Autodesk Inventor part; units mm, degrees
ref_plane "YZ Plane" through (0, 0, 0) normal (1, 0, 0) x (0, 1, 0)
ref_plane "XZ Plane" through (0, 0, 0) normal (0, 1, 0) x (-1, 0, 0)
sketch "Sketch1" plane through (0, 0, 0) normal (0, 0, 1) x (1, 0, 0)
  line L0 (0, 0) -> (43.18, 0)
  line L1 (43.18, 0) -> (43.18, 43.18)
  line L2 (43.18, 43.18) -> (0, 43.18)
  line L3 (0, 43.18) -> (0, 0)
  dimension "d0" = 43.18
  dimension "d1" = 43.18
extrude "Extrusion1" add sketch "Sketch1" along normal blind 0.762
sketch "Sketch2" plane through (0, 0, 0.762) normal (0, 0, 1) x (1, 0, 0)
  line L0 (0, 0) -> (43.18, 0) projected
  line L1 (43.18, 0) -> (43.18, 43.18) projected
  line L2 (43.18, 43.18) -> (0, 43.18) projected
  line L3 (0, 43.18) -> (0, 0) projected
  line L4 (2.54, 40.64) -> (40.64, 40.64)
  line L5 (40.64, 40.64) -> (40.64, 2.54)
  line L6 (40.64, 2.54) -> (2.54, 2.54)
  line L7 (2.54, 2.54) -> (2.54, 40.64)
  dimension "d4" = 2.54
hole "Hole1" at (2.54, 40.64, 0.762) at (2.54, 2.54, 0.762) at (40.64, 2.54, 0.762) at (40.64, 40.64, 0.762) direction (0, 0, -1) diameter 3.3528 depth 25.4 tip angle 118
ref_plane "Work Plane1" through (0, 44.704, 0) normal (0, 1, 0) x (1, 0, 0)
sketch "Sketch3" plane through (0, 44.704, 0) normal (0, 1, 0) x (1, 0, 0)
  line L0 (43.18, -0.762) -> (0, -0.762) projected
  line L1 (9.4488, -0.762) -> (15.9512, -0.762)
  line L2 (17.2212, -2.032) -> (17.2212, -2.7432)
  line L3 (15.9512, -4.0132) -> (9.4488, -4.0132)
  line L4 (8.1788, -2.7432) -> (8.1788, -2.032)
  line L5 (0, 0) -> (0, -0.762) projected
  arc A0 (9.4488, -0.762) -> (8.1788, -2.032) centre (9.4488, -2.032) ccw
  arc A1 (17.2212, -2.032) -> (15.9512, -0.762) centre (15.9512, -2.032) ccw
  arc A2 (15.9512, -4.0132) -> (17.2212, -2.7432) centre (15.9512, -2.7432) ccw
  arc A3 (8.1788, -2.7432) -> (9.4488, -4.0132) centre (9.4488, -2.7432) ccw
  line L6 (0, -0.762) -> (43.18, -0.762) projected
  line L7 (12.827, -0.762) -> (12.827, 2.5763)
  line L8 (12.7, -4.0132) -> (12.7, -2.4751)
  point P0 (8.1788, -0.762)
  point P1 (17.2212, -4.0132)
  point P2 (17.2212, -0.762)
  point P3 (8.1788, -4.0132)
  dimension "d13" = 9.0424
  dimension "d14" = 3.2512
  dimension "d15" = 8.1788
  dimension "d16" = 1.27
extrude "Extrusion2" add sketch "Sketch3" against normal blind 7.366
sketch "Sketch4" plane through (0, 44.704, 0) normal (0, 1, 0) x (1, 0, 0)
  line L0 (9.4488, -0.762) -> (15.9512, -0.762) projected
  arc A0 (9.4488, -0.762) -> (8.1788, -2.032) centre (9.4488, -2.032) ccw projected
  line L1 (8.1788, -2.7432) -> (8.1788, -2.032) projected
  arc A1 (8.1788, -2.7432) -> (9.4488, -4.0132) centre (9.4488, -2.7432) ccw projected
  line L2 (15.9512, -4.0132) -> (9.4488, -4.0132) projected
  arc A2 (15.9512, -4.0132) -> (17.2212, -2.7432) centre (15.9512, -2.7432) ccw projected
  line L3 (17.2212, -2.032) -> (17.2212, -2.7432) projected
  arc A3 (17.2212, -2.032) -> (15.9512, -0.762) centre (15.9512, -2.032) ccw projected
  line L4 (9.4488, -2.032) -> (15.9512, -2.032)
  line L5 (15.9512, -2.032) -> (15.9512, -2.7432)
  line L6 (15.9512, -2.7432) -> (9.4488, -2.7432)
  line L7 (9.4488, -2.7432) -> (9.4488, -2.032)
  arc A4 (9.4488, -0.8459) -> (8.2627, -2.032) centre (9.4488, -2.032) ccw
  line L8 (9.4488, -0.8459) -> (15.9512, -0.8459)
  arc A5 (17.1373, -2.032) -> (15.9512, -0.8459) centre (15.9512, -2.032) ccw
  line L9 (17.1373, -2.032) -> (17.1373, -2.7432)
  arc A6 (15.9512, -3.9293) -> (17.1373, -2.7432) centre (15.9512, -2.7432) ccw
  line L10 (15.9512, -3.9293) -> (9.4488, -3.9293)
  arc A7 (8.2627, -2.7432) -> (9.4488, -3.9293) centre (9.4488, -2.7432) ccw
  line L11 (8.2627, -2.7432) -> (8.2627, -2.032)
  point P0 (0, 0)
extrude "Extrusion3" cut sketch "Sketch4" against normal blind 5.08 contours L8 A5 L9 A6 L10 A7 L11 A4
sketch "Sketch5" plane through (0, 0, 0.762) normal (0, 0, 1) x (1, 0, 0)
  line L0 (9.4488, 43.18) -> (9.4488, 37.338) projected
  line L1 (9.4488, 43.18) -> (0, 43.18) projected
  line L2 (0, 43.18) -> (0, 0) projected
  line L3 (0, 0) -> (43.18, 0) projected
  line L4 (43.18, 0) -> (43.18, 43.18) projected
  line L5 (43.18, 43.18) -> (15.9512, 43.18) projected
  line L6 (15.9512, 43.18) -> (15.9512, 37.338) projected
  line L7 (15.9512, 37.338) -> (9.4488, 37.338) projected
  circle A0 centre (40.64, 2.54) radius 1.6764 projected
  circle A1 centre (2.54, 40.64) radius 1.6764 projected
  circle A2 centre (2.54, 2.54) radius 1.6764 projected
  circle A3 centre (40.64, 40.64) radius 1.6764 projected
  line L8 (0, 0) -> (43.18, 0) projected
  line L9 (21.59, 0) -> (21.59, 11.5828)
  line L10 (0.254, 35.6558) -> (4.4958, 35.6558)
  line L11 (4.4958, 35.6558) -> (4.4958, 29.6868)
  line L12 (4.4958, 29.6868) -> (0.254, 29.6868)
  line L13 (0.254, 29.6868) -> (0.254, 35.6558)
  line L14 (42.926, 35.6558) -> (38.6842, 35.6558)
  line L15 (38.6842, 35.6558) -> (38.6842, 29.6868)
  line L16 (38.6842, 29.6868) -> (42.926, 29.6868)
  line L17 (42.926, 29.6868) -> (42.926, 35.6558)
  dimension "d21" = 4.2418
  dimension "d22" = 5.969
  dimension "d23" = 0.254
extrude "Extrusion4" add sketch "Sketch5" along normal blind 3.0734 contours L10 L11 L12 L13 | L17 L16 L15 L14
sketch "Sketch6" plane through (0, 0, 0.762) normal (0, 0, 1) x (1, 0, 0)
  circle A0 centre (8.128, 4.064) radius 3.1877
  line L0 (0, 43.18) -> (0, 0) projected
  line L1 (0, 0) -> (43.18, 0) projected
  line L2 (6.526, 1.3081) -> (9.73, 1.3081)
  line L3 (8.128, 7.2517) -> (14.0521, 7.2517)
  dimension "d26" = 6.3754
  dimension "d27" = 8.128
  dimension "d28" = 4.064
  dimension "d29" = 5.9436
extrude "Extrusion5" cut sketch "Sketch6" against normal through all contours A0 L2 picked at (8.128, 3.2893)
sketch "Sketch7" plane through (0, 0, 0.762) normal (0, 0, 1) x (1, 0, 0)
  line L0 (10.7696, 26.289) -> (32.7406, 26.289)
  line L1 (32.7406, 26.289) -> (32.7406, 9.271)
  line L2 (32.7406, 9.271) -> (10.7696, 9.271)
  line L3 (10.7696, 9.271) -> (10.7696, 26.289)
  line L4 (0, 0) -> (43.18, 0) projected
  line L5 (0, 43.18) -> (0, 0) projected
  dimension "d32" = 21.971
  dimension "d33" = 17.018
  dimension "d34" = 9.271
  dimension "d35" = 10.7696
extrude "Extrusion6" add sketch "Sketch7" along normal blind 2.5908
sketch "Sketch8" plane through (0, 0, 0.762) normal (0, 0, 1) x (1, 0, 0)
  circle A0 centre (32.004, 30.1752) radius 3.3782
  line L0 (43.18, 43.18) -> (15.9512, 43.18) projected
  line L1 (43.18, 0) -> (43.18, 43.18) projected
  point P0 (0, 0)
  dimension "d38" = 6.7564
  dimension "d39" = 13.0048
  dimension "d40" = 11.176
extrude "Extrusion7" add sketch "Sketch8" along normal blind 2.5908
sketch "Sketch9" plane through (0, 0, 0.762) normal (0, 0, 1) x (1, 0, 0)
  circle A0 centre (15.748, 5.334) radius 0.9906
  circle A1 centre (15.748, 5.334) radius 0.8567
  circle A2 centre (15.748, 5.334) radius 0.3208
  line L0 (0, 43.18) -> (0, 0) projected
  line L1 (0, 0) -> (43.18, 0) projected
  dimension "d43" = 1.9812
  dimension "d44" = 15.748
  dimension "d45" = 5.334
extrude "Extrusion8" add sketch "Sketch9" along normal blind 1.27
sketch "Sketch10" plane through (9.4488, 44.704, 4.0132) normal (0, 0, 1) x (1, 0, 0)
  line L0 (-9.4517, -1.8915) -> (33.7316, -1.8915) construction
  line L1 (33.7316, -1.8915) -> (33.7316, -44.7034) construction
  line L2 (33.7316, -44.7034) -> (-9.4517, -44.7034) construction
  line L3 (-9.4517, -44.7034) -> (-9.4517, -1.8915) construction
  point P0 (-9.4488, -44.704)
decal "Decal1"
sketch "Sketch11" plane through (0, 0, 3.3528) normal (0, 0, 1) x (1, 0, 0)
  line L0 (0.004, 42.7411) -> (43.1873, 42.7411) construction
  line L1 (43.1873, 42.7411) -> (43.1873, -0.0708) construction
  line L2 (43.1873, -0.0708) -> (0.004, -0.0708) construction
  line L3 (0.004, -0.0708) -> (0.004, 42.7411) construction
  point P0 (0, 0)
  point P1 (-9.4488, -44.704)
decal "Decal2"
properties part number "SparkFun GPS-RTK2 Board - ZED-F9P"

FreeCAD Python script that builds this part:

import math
import FreeCAD as App
import Part
import Sketcher
Q = App.Units.Quantity

doc = App.newDocument("Part")
body = doc.addObject("PartDesign::Body", "Body")

# Sketch on XY plane
sketch1 = body.newObject("Sketcher::SketchObject", "Sketch")
sketch1.AttachmentSupport = (doc.getObject("XY_Plane"), [""])
sketch1.MapMode = "FlatFace"
sketch1.addGeometry(Part.LineSegment(App.Vector(0, 43, 0), App.Vector(0, 0, 0)), False)
sketch1.addGeometry(Part.LineSegment(App.Vector(0, 0, 0), App.Vector(43, 0, 0)), False)
sketch1.addGeometry(Part.LineSegment(App.Vector(43, 0, 0), App.Vector(43, 43, 0)), False)
sketch1.addGeometry(Part.LineSegment(App.Vector(43, 43, 0), App.Vector(0, 43, 0)), False)
sketch1.addConstraint(Sketcher.Constraint("Coincident", 0, 2, 1, 1))
sketch1.addConstraint(Sketcher.Constraint("Coincident", 1, 2, 2, 1))
sketch1.addConstraint(Sketcher.Constraint("Coincident", 2, 2, 3, 1))
sketch1.addConstraint(Sketcher.Constraint("Coincident", 3, 2, 0, 1))
sketch1.addConstraint(Sketcher.Constraint("Vertical", 0))
sketch1.addConstraint(Sketcher.Constraint("Horizontal", 1))
sketch1.addConstraint(Sketcher.Constraint("Vertical", 2))
sketch1.addConstraint(Sketcher.Constraint("Horizontal", 3))
sketch1.addConstraint(Sketcher.Constraint("Coincident", 0, 2, -1, 1))
sketch1.addConstraint(Sketcher.Constraint("Equal", 3, 0))
sketch1.addConstraint(Sketcher.Constraint("DistanceX", 1, 1, 1, 2, Q("1.7 in")))
pad1 = body.newObject("PartDesign::Pad", "Pad")
pad1.Profile = sketch1
pad1.Length = Q("0.03 in")

# Sketch on XY plane
sketch2 = body.newObject("Sketcher::SketchObject", "Sketch001")
sketch2.AttachmentSupport = (doc.getObject("XY_Plane"), [""])
sketch2.MapMode = "FlatFace"
sketch2.AttachmentOffset = App.Placement(App.Vector(0, 0, 0.03 * 25.4), App.Rotation())
sketch2.addGeometry(Part.Circle(App.Vector(2.5, 40.6, 0), App.Vector(0, 0, 1), 1.7), False)
sketch2.addGeometry(Part.Circle(App.Vector(2.5, 2.5, 0), App.Vector(0, 0, 1), 1.7), False)
sketch2.addGeometry(Part.Circle(App.Vector(40.6, 2.5, 0), App.Vector(0, 0, 1), 1.7), False)
sketch2.addGeometry(Part.Circle(App.Vector(40.6, 40.6, 0), App.Vector(0, 0, 1), 1.7), False)
sketch2.addConstraint(Sketcher.Constraint("Equal", 0, 1))
sketch2.addConstraint(Sketcher.Constraint("Equal", 1, 2))
sketch2.addConstraint(Sketcher.Constraint("Equal", 2, 3))
sketch2.addConstraint(Sketcher.Constraint("Horizontal", 1, 3, 2, 3))
sketch2.addConstraint(Sketcher.Constraint("Horizontal", 0, 3, 3, 3))
sketch2.addConstraint(Sketcher.Constraint("Vertical", 0, 3, 1, 3))
sketch2.addConstraint(Sketcher.Constraint("Vertical", 2, 3, 3, 3))
sketch2.addConstraint(Sketcher.Constraint("Diameter", 0, Q("0.132 in")))
sketch2.addConstraint(Sketcher.Constraint("DistanceX", -1, 1, 0, 3, Q("0.1 in")))
sketch2.addConstraint(Sketcher.Constraint("DistanceY", -1, 1, 0, 3, Q("1.6 in")))
sketch2.addConstraint(Sketcher.Constraint("DistanceY", -1, 1, 1, 3, Q("0.1 in")))
sketch2.addConstraint(Sketcher.Constraint("DistanceX", -1, 1, 2, 3, Q("1.6 in")))
doc.recompute()
hole = body.newObject("PartDesign::Hole", "Hole")
hole.Profile = sketch2
hole.ThreadType = "None"
hole.Diameter = Q("0.132 in")
hole.DepthType = "Dimension"
hole.Depth = Q("1 in")
hole.DrillPoint = "Angled"
hole.DrillPointAngle = 118

# Sketch on XZ plane
sketch3 = body.newObject("Sketcher::SketchObject", "Sketch002")
sketch3.AttachmentSupport = (doc.getObject("XZ_Plane"), [""])
sketch3.MapMode = "FlatFace"
sketch3.AttachmentOffset = App.Placement(App.Vector(0, 0, -1.76 * 25.4), App.Rotation())
sketch3.addGeometry(Part.ArcOfCircle(Part.Circle(App.Vector(16, 2, 0), App.Vector(0, 0, 1), 1.3), math.radians(-90), math.radians(0)), False)
sketch3.addGeometry(Part.LineSegment(App.Vector(16, 0.8, 0), App.Vector(9.4, 0.8, 0)), False)
sketch3.addGeometry(Part.ArcOfCircle(Part.Circle(App.Vector(9.4, 2, 0), App.Vector(0, 0, 1), 1.3), math.radians(180), math.radians(270)), False)
sketch3.addGeometry(Part.LineSegment(App.Vector(8.2, 2, 0), App.Vector(8.2, 2.7, 0)), False)
sketch3.addGeometry(Part.ArcOfCircle(Part.Circle(App.Vector(9.4, 2.7, 0), App.Vector(0, 0, 1), 1.3), math.radians(90), math.radians(180)), False)
sketch3.addGeometry(Part.LineSegment(App.Vector(9.4, 4, 0), App.Vector(16, 4, 0)), False)
sketch3.addGeometry(Part.ArcOfCircle(Part.Circle(App.Vector(16, 2.7, 0), App.Vector(0, 0, 1), 1.3), math.radians(0), math.radians(90)), False)
sketch3.addGeometry(Part.LineSegment(App.Vector(17.2, 2.7, 0), App.Vector(17.2, 2, 0)), False)
sketch3.addConstraint(Sketcher.Constraint("Tangent", 0, 1, 1, 1))
sketch3.addConstraint(Sketcher.Constraint("Tangent", 1, 2, 2, 2))
sketch3.addConstraint(Sketcher.Constraint("Tangent", 2, 1, 3, 1))
sketch3.addConstraint(Sketcher.Constraint("Tangent", 3, 2, 4, 2))
sketch3.addConstraint(Sketcher.Constraint("Tangent", 4, 1, 5, 1))
sketch3.addConstraint(Sketcher.Constraint("Tangent", 5, 2, 6, 2))
sketch3.addConstraint(Sketcher.Constraint("Tangent", 6, 1, 7, 1))
sketch3.addConstraint(Sketcher.Constraint("Tangent", 7, 2, 0, 2))
sketch3.addConstraint(Sketcher.Constraint("Horizontal", 1))
sketch3.addConstraint(Sketcher.Constraint("Vertical", 3))
sketch3.addConstraint(Sketcher.Constraint("Horizontal", 5))
sketch3.addConstraint(Sketcher.Constraint("Vertical", 7))
sketch3.addConstraint(Sketcher.Constraint("Equal", 0, 2))
sketch3.addConstraint(Sketcher.Constraint("Equal", 2, 4))
sketch3.addConstraint(Sketcher.Constraint("Equal", 4, 6))
sketch3.addConstraint(Sketcher.Constraint("Radius", 0, Q("0.05 in")))
sketch3.addConstraint(Sketcher.Constraint("DistanceX", -1, 1, 2, 1, Q("0.322 in")))
sketch3.addConstraint(Sketcher.Constraint("DistanceY", 1, 2, 4, 1, Q("0.128 in")))
sketch3.addConstraint(Sketcher.Constraint("DistanceX", 1, 2, 1, 1, Q("0.256 in")))
sketch3.addConstraint(Sketcher.Constraint("DistanceY", -1, 1, 0, 3, Q("0.08 in")))
pad2 = body.newObject("PartDesign::Pad", "Pad001")
pad2.Profile = sketch3
pad2.Length = Q("0.29 in")

# Sketch on XZ plane
sketch4 = body.newObject("Sketcher::SketchObject", "Sketch003")
sketch4.AttachmentSupport = (doc.getObject("XZ_Plane"), [""])
sketch4.MapMode = "FlatFace"
sketch4.AttachmentOffset = App.Placement(App.Vector(0, 0, -1.76 * 25.4), App.Rotation())
sketch4.addGeometry(Part.LineSegment(App.Vector(16, 0.8, 0), App.Vector(9.4, 0.8, 0)), False)
sketch4.addGeometry(Part.ArcOfCircle(Part.Circle(App.Vector(9.4, 2, 0), App.Vector(0, 0, 1), 1.2), math.radians(180), math.radians(270)), False)
sketch4.addGeometry(Part.LineSegment(App.Vector(8.3, 2, 0), App.Vector(8.3, 2.7, 0)), False)
sketch4.addGeometry(Part.ArcOfCircle(Part.Circle(App.Vector(9.4, 2.7, 0), App.Vector(0, 0, 1), 1.2), math.radians(90), math.radians(180)), False)
sketch4.addGeometry(Part.LineSegment(App.Vector(9.4, 3.9, 0), App.Vector(16, 3.9, 0)), False)
sketch4.addGeometry(Part.ArcOfCircle(Part.Circle(App.Vector(16, 2.7, 0), App.Vector(0, 0, 1), 1.2), math.radians(0), math.radians(90)), False)
sketch4.addGeometry(Part.LineSegment(App.Vector(17.1, 2.7, 0), App.Vector(17.1, 2, 0)), False)
sketch4.addGeometry(Part.ArcOfCircle(Part.Circle(App.Vector(16, 2, 0), App.Vector(0, 0, 1), 1.2), math.radians(-90), math.radians(0)), False)
sketch4.addGeometry(Part.LineSegment(App.Vector(9.4, 2.7, 0), App.Vector(9.4, 2, 0)), False)
sketch4.addGeometry(Part.LineSegment(App.Vector(9.4, 2, 0), App.Vector(16, 2, 0)), False)
sketch4.addGeometry(Part.LineSegment(App.Vector(16, 2, 0), App.Vector(16, 2.7, 0)), False)
sketch4.addGeometry(Part.LineSegment(App.Vector(16, 2.7, 0), App.Vector(9.4, 2.7, 0)), False)
sketch4.addConstraint(Sketcher.Constraint("Tangent", 0, 2, 1, 2))
sketch4.addConstraint(Sketcher.Constraint("Tangent", 1, 1, 2, 1))
sketch4.addConstraint(Sketcher.Constraint("Tangent", 2, 2, 3, 2))
sketch4.addConstraint(Sketcher.Constraint("Tangent", 3, 1, 4, 1))
sketch4.addConstraint(Sketcher.Constraint("Tangent", 4, 2, 5, 2))
sketch4.addConstraint(Sketcher.Constraint("Tangent", 5, 1, 6, 1))
sketch4.addConstraint(Sketcher.Constraint("Tangent", 6, 2, 7, 2))
sketch4.addConstraint(Sketcher.Constraint("Tangent", 7, 1, 0, 1))
sketch4.addConstraint(Sketcher.Constraint("Coincident", 8, 2, 9, 1))
sketch4.addConstraint(Sketcher.Constraint("Coincident", 9, 2, 10, 1))
sketch4.addConstraint(Sketcher.Constraint("Coincident", 10, 2, 11, 1))
sketch4.addConstraint(Sketcher.Constraint("Coincident", 11, 2, 8, 1))
sketch4.addConstraint(Sketcher.Constraint("Horizontal", 0))
sketch4.addConstraint(Sketcher.Constraint("Vertical", 2))
sketch4.addConstraint(Sketcher.Constraint("Horizontal", 4))
sketch4.addConstraint(Sketcher.Constraint("Vertical", 6))
sketch4.addConstraint(Sketcher.Constraint("Vertical", 8))
sketch4.addConstraint(Sketcher.Constraint("Horizontal", 9))
sketch4.addConstraint(Sketcher.Constraint("Vertical", 10))
sketch4.addConstraint(Sketcher.Constraint("Horizontal", 11))
sketch4.addConstraint(Sketcher.Constraint("Coincident", 8, 2, 1, 3))
sketch4.addConstraint(Sketcher.Constraint("Coincident", 9, 2, 7, 3))
sketch4.addConstraint(Sketcher.Constraint("Coincident", 10, 2, 5, 3))
sketch4.addConstraint(Sketcher.Constraint("Equal", 1, 3))
sketch4.addConstraint(Sketcher.Constraint("Radius", 1, Q("0.0467 in")))
sketch4.addConstraint(Sketcher.Constraint("DistanceX", 0, 2, 0, 1, Q("0.256 in")))
sketch4.addConstraint(Sketcher.Constraint("DistanceY", 2, 1, 2, 2, Q("0.028 in")))
sketch4.addConstraint(Sketcher.Constraint("DistanceY", -1, 1, 1, 3, Q("0.08 in")))
sketch4.addConstraint(Sketcher.Constraint("DistanceX", -1, 1, 1, 3, Q("0.372 in")))
pocket1 = body.newObject("PartDesign::Pocket", "Pocket")
pocket1.Profile = sketch4
pocket1.Length = Q("0.2 in")
pocket1.Reversed = True

# Sketch on XY plane
sketch5 = body.newObject("Sketcher::SketchObject", "Sketch004")
sketch5.AttachmentSupport = (doc.getObject("XY_Plane"), [""])
sketch5.MapMode = "FlatFace"
sketch5.AttachmentOffset = App.Placement(App.Vector(0, 0, 0.03 * 25.4), App.Rotation())
sketch5.addGeometry(Part.LineSegment(App.Vector(4.5, 35.7, 0), App.Vector(0.3, 35.7, 0)), False)
sketch5.addGeometry(Part.LineSegment(App.Vector(0.3, 35.7, 0), App.Vector(0.3, 29.7, 0)), False)
sketch5.addGeometry(Part.LineSegment(App.Vector(0.3, 29.7, 0), App.Vector(4.5, 29.7, 0)), False)
sketch5.addGeometry(Part.LineSegment(App.Vector(4.5, 29.7, 0), App.Vector(4.5, 35.7, 0)), False)
sketch5.addGeometry(Part.LineSegment(App.Vector(42.9, 29.7, 0), App.Vector(42.9, 35.7, 0)), False)
sketch5.addGeometry(Part.LineSegment(App.Vector(42.9, 35.7, 0), App.Vector(38.7, 35.7, 0)), False)
sketch5.addGeometry(Part.LineSegment(App.Vector(38.7, 35.7, 0), App.Vector(38.7, 29.7, 0)), False)
sketch5.addGeometry(Part.LineSegment(App.Vector(38.7, 29.7, 0), App.Vector(42.9, 29.7, 0)), False)
sketch5.addConstraint(Sketcher.Constraint("Coincident", 0, 2, 1, 1))
sketch5.addConstraint(Sketcher.Constraint("Coincident", 1, 2, 2, 1))
sketch5.addConstraint(Sketcher.Constraint("Coincident", 2, 2, 3, 1))
sketch5.addConstraint(Sketcher.Constraint("Coincident", 3, 2, 0, 1))
sketch5.addConstraint(Sketcher.Constraint("Coincident", 4, 2, 5, 1))
sketch5.addConstraint(Sketcher.Constraint("Coincident", 5, 2, 6, 1))
sketch5.addConstraint(Sketcher.Constraint("Coincident", 6, 2, 7, 1))
sketch5.addConstraint(Sketcher.Constraint("Coincident", 7, 2, 4, 1))
sketch5.addConstraint(Sketcher.Constraint("Horizontal", 0))
sketch5.addConstraint(Sketcher.Constraint("Vertical", 1))
sketch5.addConstraint(Sketcher.Constraint("Horizontal", 2))
sketch5.addConstraint(Sketcher.Constraint("Vertical", 3))
sketch5.addConstraint(Sketcher.Constraint("Vertical", 4))
sketch5.addConstraint(Sketcher.Constraint("Horizontal", 5))
sketch5.addConstraint(Sketcher.Constraint("Vertical", 6))
sketch5.addConstraint(Sketcher.Constraint("Horizontal", 7))
sketch5.addConstraint(Sketcher.Constraint("Horizontal", 3, 2, 4, 2))
sketch5.addConstraint(Sketcher.Constraint("Horizontal", 2, 2, 6, 2))
sketch5.addConstraint(Sketcher.Constraint("Equal", 2, 5))
sketch5.addConstraint(Sketcher.Constraint("DistanceX", 0, 2, 0, 1, Q("0.167 in")))
sketch5.addConstraint(Sketcher.Constraint("DistanceY", 1, 2, 1, 1, Q("0.235 in")))
sketch5.addConstraint(Sketcher.Constraint("DistanceX", -1, 1, 0, 2, Q("0.01 in")))
sketch5.addConstraint(Sketcher.Constraint("DistanceX", -1, 1, 4, 2, Q("1.69 in")))
sketch5.addConstraint(Sketcher.Constraint("DistanceY", -1, 1, 0, 2, 35.6558))
pad3 = body.newObject("PartDesign::Pad", "Pad002")
pad3.Profile = sketch5
pad3.Length = Q("0.121 in")

# Sketch on XY plane
sketch6 = body.newObject("Sketcher::SketchObject", "Sketch005")
sketch6.AttachmentSupport = (doc.getObject("XY_Plane"), [""])
sketch6.MapMode = "FlatFace"
sketch6.AttachmentOffset = App.Placement(App.Vector(0, 0, 0.03 * 25.4), App.Rotation())
sketch6.addGeometry(Part.ArcOfCircle(Part.Circle(App.Vector(8.1, 4.1, 0), App.Vector(0, 0, 1), 3.2), math.radians(-60), math.radians(240)), False)
sketch6.addGeometry(Part.LineSegment(App.Vector(9.7, 1.3, 0), App.Vector(6.5, 1.3, 0)), False)
sketch6.addConstraint(Sketcher.Constraint("Coincident", 0, 1, 1, 1))
sketch6.addConstraint(Sketcher.Constraint("Coincident", 1, 2, 0, 2))
sketch6.addConstraint(Sketcher.Constraint("Horizontal", 1))
sketch6.addConstraint(Sketcher.Constraint("Radius", 0, Q("0.1255 in")))
sketch6.addConstraint(Sketcher.Constraint("DistanceX", -1, 1, 0, 3, Q("0.32 in")))
sketch6.addConstraint(Sketcher.Constraint("DistanceY", -1, 1, 0, 3, Q("0.16 in")))
sketch6.addConstraint(Sketcher.Constraint("DistanceX", 1, 2, 1, 1, 3.204))
pocket2 = body.newObject("PartDesign::Pocket", "Pocket001")
pocket2.Profile = sketch6
pocket2.Type = "ThroughAll"

# Sketch on XY plane
sketch7 = body.newObject("Sketcher::SketchObject", "Sketch006")
sketch7.AttachmentSupport = (doc.getObject("XY_Plane"), [""])
sketch7.MapMode = "FlatFace"
sketch7.AttachmentOffset = App.Placement(App.Vector(0, 0, 0.03 * 25.4), App.Rotation())
sketch7.addGeometry(Part.LineSegment(App.Vector(33, 26, 0), App.Vector(11, 26, 0)), False)
sketch7.addGeometry(Part.LineSegment(App.Vector(11, 26, 0), App.Vector(11, 9, 0)), False)
sketch7.addGeometry(Part.LineSegment(App.Vector(11, 9, 0), App.Vector(33, 9, 0)), False)
sketch7.addGeometry(Part.LineSegment(App.Vector(33, 9, 0), App.Vector(33, 26, 0)), False)
sketch7.addConstraint(Sketcher.Constraint("Coincident", 0, 2, 1, 1))
sketch7.addConstraint(Sketcher.Constraint("Coincident", 1, 2, 2, 1))
sketch7.addConstraint(Sketcher.Constraint("Coincident", 2, 2, 3, 1))
sketch7.addConstraint(Sketcher.Constraint("Coincident", 3, 2, 0, 1))
sketch7.addConstraint(Sketcher.Constraint("Horizontal", 0))
sketch7.addConstraint(Sketcher.Constraint("Vertical", 1))
sketch7.addConstraint(Sketcher.Constraint("Horizontal", 2))
sketch7.addConstraint(Sketcher.Constraint("Vertical", 3))
sketch7.addConstraint(Sketcher.Constraint("DistanceY", 1, 2, 1, 1, Q("0.67 in")))
sketch7.addConstraint(Sketcher.Constraint("DistanceX", 0, 2, 0, 1, Q("0.865 in")))
sketch7.addConstraint(Sketcher.Constraint("DistanceX", -1, 1, 0, 2, Q("0.424 in")))
sketch7.addConstraint(Sketcher.Constraint("DistanceY", -1, 1, 1, 2, Q("0.365 in")))
pad4 = body.newObject("PartDesign::Pad", "Pad003")
pad4.Profile = sketch7
pad4.Length = Q("0.102 in")

# Sketch on XY plane
sketch8 = body.newObject("Sketcher::SketchObject", "Sketch007")
sketch8.AttachmentSupport = (doc.getObject("XY_Plane"), [""])
sketch8.MapMode = "FlatFace"
sketch8.AttachmentOffset = App.Placement(App.Vector(0, 0, 0.03 * 25.4), App.Rotation())
sketch8.addGeometry(Part.Circle(App.Vector(32, 30.2, 0), App.Vector(0, 0, 1), 3.4), False)
sketch8.addConstraint(Sketcher.Constraint("Diameter", 0, Q("0.266 in")))
sketch8.addConstraint(Sketcher.Constraint("DistanceX", -1, 1, 0, 3, Q("1.26 in")))
sketch8.addConstraint(Sketcher.Constraint("DistanceY", -1, 1, 0, 3, Q("1.188 in")))
pad5 = body.newObject("PartDesign::Pad", "Pad004")
pad5.Profile = sketch8
pad5.Length = Q("0.102 in")

# Sketch on XY plane
sketch9 = body.newObject("Sketcher::SketchObject", "Sketch008")
sketch9.AttachmentSupport = (doc.getObject("XY_Plane"), [""])
sketch9.MapMode = "FlatFace"
sketch9.AttachmentOffset = App.Placement(App.Vector(0, 0, 0.03 * 25.4), App.Rotation())
sketch9.addGeometry(Part.Circle(App.Vector(15.75, 5.33, 0), App.Vector(0, 0, 1), 0.99), False)
sketch9.addGeometry(Part.Circle(App.Vector(15.75, 5.33, 0), App.Vector(0, 0, 1), 0.86), False)
sketch9.addGeometry(Part.Circle(App.Vector(15.75, 5.33, 0), App.Vector(0, 0, 1), 0.32), False)
sketch9.addConstraint(Sketcher.Constraint("Coincident", 1, 3, 0, 3))
sketch9.addConstraint(Sketcher.Constraint("Coincident", 2, 3, 0, 3))
sketch9.addConstraint(Sketcher.Constraint("Diameter", 0, Q("0.078 in")))
sketch9.addConstraint(Sketcher.Constraint("DistanceX", -1, 1, 0, 3, Q("0.62 in")))
sketch9.addConstraint(Sketcher.Constraint("DistanceY", -1, 1, 0, 3, Q("0.21 in")))
sketch9.addConstraint(Sketcher.Constraint("Diameter", 1, 1.7134))
sketch9.addConstraint(Sketcher.Constraint("Diameter", 2, 0.6416))
pad6 = body.newObject("PartDesign::Pad", "Pad005")
pad6.Profile = sketch9
pad6.Length = Q("0.05 in")

doc.recompute()
